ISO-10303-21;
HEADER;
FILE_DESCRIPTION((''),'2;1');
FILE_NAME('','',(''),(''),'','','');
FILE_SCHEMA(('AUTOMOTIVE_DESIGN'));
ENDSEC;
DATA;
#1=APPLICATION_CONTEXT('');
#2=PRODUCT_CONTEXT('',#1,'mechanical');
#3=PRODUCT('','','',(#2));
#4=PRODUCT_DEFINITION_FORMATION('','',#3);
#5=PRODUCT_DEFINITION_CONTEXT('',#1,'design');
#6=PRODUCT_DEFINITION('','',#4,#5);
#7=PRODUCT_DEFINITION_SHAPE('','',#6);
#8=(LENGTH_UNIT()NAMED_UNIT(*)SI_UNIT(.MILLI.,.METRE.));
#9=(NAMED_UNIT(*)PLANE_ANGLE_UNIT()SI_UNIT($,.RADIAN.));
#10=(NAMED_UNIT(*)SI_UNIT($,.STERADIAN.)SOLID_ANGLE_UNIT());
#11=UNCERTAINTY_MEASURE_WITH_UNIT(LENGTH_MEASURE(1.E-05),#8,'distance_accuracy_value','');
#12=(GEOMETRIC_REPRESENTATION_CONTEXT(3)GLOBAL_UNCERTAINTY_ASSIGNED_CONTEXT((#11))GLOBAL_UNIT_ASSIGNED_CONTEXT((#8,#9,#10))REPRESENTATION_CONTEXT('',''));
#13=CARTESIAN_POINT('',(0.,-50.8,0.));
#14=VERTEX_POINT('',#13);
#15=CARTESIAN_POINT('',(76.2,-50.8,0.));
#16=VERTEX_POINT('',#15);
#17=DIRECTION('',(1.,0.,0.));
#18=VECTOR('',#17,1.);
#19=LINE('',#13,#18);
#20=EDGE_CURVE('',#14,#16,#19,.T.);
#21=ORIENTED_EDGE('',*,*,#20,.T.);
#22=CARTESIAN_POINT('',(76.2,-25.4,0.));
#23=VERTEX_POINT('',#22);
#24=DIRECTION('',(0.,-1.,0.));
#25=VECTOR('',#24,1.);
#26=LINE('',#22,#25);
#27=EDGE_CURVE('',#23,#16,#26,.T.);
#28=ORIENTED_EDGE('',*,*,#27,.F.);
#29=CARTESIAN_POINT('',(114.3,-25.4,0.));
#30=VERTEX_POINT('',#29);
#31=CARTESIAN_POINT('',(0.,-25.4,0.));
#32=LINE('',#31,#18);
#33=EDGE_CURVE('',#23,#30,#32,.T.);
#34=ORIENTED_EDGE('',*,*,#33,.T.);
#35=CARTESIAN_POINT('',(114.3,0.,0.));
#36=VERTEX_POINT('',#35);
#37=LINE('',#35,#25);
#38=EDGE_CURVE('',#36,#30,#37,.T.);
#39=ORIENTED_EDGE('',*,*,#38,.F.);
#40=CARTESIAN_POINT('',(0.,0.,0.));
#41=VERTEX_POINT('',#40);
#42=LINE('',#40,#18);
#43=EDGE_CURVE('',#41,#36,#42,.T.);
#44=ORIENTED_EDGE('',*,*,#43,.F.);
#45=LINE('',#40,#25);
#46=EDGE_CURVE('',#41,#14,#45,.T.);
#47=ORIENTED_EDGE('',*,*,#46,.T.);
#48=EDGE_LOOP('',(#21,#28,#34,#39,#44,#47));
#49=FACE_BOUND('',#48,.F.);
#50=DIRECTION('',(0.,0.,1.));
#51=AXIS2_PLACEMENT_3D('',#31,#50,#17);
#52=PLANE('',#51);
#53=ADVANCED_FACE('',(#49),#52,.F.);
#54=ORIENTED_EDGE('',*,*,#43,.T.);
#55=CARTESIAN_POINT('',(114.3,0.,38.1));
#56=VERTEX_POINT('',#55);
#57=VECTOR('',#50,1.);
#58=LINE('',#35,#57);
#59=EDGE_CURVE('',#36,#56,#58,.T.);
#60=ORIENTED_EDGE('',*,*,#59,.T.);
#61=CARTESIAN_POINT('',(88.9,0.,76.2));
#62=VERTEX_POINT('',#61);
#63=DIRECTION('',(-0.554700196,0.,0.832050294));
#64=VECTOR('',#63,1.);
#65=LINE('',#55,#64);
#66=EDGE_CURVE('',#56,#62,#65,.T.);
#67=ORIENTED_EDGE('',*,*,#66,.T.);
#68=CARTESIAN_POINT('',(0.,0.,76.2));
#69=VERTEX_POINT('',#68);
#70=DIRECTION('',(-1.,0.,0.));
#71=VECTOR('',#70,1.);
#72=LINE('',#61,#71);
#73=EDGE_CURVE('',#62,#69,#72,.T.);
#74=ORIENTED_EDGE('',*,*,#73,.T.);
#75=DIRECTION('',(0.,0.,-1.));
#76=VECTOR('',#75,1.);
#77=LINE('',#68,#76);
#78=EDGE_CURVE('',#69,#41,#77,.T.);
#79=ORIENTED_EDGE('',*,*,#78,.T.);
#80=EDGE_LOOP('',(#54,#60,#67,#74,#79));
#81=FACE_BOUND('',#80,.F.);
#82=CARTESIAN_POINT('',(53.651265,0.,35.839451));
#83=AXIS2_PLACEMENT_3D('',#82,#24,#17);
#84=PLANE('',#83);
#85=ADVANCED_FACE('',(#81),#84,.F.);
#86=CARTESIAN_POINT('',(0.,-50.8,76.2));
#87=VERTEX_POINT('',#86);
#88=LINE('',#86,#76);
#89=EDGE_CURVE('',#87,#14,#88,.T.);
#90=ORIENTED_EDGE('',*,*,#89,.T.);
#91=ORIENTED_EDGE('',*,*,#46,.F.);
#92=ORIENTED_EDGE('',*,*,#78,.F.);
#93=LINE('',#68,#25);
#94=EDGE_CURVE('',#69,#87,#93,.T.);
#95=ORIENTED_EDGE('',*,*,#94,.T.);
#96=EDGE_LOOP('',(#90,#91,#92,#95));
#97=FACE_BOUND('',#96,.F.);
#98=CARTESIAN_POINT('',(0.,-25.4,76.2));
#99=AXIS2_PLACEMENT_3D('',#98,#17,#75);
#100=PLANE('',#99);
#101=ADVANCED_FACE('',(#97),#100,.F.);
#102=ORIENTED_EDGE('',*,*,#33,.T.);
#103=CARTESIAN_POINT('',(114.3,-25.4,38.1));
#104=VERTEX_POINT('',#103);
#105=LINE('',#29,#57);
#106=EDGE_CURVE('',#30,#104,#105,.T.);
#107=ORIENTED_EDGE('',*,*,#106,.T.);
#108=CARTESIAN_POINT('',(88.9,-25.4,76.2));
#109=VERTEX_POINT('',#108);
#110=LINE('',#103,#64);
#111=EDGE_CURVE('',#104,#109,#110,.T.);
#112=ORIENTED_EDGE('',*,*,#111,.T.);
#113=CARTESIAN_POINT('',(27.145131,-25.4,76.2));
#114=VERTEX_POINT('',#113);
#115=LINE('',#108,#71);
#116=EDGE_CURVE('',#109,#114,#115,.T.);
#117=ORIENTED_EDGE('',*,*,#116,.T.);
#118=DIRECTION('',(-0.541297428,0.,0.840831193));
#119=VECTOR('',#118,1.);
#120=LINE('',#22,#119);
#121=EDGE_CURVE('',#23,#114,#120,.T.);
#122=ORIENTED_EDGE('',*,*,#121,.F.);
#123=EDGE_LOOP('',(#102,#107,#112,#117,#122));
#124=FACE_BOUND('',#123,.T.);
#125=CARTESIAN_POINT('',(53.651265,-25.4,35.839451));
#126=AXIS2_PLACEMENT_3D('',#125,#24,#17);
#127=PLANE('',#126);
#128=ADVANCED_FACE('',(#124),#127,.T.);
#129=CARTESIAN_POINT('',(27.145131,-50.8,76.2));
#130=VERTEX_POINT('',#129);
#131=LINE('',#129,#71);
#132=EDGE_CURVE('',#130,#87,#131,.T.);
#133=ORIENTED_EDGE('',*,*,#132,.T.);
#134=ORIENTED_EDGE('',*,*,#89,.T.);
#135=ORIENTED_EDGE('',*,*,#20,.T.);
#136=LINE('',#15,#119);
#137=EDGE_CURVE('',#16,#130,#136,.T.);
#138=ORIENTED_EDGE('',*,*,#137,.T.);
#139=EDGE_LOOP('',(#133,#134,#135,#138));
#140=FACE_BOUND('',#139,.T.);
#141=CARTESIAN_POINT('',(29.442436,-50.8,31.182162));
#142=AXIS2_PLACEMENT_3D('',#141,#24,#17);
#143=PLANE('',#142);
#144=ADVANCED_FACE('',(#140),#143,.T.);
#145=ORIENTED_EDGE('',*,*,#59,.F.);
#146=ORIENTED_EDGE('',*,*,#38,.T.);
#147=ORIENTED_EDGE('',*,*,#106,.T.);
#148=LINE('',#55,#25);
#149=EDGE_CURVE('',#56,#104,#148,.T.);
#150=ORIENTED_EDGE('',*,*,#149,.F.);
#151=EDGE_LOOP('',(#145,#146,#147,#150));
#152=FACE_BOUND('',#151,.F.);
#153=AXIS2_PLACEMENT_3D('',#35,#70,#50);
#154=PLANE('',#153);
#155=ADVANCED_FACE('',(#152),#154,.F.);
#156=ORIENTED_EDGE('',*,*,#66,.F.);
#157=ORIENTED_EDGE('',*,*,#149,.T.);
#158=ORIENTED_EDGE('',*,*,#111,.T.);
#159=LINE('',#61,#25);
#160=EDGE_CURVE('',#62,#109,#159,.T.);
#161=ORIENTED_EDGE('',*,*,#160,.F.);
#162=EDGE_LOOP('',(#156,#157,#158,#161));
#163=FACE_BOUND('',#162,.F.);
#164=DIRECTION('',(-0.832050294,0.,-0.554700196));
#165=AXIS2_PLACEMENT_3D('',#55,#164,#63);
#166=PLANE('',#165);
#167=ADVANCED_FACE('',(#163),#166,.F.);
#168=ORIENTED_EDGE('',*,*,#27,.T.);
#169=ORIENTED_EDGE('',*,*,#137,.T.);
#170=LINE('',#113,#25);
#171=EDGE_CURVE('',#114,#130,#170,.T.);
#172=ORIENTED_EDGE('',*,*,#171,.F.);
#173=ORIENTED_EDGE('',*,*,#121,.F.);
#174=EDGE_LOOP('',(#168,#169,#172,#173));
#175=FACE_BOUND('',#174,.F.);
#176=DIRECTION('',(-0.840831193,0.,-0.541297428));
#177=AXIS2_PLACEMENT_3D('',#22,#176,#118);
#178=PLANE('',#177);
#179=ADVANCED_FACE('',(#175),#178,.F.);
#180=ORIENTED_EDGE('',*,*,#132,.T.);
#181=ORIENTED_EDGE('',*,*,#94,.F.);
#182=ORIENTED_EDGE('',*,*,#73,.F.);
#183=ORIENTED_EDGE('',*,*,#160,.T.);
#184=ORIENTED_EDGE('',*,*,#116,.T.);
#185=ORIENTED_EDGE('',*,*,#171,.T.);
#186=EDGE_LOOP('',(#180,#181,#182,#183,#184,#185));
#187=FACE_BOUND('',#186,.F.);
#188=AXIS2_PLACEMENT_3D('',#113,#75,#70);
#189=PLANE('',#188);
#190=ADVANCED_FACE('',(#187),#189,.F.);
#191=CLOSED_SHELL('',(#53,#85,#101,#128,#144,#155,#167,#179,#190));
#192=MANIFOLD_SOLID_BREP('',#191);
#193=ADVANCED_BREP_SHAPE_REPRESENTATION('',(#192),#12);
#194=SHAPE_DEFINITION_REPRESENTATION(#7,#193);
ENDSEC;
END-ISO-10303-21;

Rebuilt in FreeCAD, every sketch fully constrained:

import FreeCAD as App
import Part
import Sketcher
from FreeCAD import Vector
Q = App.Units.Quantity


def add_polygon(sketch, points):
    """Adds a closed chain of lines whose ends are joined by coincident constraints."""
    first, n = sketch.GeometryCount, len(points)
    for a, b in zip(points, points[1:] + points[:1]):
        sketch.addGeometry(Part.LineSegment(App.Vector(*a, 0), App.Vector(*b, 0)), False)
    for i in range(n):
        sketch.addConstraint(Sketcher.Constraint("Coincident", first + i, 2, first + (i + 1) % n, 1))

doc = App.newDocument("Part")
body = doc.addObject("PartDesign::Body", "Body")

# Sketch on XZ plane
sketch1 = doc.addObject("Sketcher::SketchObject", "Sketch")
body.addObject(sketch1)
sketch1.AttachmentSupport = (doc.XZ_Plane, [""])
sketch1.MapMode = "FlatFace"
add_polygon(sketch1, [(0, 76), (0, 0), (114, 0), (114, 38), (89, 76)])  # lines 0-4
sketch1.addConstraint(Sketcher.Constraint("Vertical", 0))
sketch1.addConstraint(Sketcher.Constraint("Horizontal", 1))
sketch1.addConstraint(Sketcher.Constraint("Vertical", 2))
sketch1.addConstraint(Sketcher.Constraint("Horizontal", 4))
sketch1.addConstraint(Sketcher.Constraint("Coincident", 0, 2, -1, 1))
sketch1.addConstraint(Sketcher.Constraint("DistanceY", 0, 2, 0, 1, Q("3 in")))
sketch1.addConstraint(Sketcher.Constraint("DistanceX", 1, 1, 1, 2, Q("4.5 in")))
sketch1.addConstraint(Sketcher.Constraint("DistanceX", 4, 2, 4, 1, Q("3.5 in")))
sketch1.addConstraint(Sketcher.Constraint("DistanceY", 2, 1, 2, 2, Q("1.5 in")))
pad1 = doc.addObject("PartDesign::Pad", "Pad")
body.addObject(pad1)
pad1.Profile = sketch1
pad1.Length = Q("1 in")

# Sketch on XZ plane
sketch2 = doc.addObject("Sketcher::SketchObject", "Sketch001")
body.addObject(sketch2)
sketch2.AttachmentSupport = (doc.XZ_Plane, [""])
sketch2.MapMode = "FlatFace"
sketch2.AttachmentOffset = App.Placement(Vector(0, 0, 1 * 25.4), App.Rotation())
add_polygon(sketch2, [(27, 76), (0, 76), (0, 0), (76, 0)])  # lines 0-3
sketch2.addConstraint(Sketcher.Constraint("Horizontal", 0))
sketch2.addConstraint(Sketcher.Constraint("Vertical", 1))
sketch2.addConstraint(Sketcher.Constraint("Horizontal", 2))
sketch2.addConstraint(Sketcher.Constraint("Coincident", 1, 2, -1, 1))
sketch2.addConstraint(Sketcher.Constraint("Equal", 2, 1))
sketch2.addConstraint(Sketcher.Constraint("DistanceX", 2, 1, 2, 2, Q("3 in")))
sketch2.addConstraint(Sketcher.Constraint("DistanceX", 0, 2, 0, 1, Q("27.145131 mm")))
pad2 = doc.addObject("PartDesign::Pad", "Pad001")
body.addObject(pad2)
pad2.Profile = sketch2
pad2.Length = Q("1 in")

doc.recompute()
